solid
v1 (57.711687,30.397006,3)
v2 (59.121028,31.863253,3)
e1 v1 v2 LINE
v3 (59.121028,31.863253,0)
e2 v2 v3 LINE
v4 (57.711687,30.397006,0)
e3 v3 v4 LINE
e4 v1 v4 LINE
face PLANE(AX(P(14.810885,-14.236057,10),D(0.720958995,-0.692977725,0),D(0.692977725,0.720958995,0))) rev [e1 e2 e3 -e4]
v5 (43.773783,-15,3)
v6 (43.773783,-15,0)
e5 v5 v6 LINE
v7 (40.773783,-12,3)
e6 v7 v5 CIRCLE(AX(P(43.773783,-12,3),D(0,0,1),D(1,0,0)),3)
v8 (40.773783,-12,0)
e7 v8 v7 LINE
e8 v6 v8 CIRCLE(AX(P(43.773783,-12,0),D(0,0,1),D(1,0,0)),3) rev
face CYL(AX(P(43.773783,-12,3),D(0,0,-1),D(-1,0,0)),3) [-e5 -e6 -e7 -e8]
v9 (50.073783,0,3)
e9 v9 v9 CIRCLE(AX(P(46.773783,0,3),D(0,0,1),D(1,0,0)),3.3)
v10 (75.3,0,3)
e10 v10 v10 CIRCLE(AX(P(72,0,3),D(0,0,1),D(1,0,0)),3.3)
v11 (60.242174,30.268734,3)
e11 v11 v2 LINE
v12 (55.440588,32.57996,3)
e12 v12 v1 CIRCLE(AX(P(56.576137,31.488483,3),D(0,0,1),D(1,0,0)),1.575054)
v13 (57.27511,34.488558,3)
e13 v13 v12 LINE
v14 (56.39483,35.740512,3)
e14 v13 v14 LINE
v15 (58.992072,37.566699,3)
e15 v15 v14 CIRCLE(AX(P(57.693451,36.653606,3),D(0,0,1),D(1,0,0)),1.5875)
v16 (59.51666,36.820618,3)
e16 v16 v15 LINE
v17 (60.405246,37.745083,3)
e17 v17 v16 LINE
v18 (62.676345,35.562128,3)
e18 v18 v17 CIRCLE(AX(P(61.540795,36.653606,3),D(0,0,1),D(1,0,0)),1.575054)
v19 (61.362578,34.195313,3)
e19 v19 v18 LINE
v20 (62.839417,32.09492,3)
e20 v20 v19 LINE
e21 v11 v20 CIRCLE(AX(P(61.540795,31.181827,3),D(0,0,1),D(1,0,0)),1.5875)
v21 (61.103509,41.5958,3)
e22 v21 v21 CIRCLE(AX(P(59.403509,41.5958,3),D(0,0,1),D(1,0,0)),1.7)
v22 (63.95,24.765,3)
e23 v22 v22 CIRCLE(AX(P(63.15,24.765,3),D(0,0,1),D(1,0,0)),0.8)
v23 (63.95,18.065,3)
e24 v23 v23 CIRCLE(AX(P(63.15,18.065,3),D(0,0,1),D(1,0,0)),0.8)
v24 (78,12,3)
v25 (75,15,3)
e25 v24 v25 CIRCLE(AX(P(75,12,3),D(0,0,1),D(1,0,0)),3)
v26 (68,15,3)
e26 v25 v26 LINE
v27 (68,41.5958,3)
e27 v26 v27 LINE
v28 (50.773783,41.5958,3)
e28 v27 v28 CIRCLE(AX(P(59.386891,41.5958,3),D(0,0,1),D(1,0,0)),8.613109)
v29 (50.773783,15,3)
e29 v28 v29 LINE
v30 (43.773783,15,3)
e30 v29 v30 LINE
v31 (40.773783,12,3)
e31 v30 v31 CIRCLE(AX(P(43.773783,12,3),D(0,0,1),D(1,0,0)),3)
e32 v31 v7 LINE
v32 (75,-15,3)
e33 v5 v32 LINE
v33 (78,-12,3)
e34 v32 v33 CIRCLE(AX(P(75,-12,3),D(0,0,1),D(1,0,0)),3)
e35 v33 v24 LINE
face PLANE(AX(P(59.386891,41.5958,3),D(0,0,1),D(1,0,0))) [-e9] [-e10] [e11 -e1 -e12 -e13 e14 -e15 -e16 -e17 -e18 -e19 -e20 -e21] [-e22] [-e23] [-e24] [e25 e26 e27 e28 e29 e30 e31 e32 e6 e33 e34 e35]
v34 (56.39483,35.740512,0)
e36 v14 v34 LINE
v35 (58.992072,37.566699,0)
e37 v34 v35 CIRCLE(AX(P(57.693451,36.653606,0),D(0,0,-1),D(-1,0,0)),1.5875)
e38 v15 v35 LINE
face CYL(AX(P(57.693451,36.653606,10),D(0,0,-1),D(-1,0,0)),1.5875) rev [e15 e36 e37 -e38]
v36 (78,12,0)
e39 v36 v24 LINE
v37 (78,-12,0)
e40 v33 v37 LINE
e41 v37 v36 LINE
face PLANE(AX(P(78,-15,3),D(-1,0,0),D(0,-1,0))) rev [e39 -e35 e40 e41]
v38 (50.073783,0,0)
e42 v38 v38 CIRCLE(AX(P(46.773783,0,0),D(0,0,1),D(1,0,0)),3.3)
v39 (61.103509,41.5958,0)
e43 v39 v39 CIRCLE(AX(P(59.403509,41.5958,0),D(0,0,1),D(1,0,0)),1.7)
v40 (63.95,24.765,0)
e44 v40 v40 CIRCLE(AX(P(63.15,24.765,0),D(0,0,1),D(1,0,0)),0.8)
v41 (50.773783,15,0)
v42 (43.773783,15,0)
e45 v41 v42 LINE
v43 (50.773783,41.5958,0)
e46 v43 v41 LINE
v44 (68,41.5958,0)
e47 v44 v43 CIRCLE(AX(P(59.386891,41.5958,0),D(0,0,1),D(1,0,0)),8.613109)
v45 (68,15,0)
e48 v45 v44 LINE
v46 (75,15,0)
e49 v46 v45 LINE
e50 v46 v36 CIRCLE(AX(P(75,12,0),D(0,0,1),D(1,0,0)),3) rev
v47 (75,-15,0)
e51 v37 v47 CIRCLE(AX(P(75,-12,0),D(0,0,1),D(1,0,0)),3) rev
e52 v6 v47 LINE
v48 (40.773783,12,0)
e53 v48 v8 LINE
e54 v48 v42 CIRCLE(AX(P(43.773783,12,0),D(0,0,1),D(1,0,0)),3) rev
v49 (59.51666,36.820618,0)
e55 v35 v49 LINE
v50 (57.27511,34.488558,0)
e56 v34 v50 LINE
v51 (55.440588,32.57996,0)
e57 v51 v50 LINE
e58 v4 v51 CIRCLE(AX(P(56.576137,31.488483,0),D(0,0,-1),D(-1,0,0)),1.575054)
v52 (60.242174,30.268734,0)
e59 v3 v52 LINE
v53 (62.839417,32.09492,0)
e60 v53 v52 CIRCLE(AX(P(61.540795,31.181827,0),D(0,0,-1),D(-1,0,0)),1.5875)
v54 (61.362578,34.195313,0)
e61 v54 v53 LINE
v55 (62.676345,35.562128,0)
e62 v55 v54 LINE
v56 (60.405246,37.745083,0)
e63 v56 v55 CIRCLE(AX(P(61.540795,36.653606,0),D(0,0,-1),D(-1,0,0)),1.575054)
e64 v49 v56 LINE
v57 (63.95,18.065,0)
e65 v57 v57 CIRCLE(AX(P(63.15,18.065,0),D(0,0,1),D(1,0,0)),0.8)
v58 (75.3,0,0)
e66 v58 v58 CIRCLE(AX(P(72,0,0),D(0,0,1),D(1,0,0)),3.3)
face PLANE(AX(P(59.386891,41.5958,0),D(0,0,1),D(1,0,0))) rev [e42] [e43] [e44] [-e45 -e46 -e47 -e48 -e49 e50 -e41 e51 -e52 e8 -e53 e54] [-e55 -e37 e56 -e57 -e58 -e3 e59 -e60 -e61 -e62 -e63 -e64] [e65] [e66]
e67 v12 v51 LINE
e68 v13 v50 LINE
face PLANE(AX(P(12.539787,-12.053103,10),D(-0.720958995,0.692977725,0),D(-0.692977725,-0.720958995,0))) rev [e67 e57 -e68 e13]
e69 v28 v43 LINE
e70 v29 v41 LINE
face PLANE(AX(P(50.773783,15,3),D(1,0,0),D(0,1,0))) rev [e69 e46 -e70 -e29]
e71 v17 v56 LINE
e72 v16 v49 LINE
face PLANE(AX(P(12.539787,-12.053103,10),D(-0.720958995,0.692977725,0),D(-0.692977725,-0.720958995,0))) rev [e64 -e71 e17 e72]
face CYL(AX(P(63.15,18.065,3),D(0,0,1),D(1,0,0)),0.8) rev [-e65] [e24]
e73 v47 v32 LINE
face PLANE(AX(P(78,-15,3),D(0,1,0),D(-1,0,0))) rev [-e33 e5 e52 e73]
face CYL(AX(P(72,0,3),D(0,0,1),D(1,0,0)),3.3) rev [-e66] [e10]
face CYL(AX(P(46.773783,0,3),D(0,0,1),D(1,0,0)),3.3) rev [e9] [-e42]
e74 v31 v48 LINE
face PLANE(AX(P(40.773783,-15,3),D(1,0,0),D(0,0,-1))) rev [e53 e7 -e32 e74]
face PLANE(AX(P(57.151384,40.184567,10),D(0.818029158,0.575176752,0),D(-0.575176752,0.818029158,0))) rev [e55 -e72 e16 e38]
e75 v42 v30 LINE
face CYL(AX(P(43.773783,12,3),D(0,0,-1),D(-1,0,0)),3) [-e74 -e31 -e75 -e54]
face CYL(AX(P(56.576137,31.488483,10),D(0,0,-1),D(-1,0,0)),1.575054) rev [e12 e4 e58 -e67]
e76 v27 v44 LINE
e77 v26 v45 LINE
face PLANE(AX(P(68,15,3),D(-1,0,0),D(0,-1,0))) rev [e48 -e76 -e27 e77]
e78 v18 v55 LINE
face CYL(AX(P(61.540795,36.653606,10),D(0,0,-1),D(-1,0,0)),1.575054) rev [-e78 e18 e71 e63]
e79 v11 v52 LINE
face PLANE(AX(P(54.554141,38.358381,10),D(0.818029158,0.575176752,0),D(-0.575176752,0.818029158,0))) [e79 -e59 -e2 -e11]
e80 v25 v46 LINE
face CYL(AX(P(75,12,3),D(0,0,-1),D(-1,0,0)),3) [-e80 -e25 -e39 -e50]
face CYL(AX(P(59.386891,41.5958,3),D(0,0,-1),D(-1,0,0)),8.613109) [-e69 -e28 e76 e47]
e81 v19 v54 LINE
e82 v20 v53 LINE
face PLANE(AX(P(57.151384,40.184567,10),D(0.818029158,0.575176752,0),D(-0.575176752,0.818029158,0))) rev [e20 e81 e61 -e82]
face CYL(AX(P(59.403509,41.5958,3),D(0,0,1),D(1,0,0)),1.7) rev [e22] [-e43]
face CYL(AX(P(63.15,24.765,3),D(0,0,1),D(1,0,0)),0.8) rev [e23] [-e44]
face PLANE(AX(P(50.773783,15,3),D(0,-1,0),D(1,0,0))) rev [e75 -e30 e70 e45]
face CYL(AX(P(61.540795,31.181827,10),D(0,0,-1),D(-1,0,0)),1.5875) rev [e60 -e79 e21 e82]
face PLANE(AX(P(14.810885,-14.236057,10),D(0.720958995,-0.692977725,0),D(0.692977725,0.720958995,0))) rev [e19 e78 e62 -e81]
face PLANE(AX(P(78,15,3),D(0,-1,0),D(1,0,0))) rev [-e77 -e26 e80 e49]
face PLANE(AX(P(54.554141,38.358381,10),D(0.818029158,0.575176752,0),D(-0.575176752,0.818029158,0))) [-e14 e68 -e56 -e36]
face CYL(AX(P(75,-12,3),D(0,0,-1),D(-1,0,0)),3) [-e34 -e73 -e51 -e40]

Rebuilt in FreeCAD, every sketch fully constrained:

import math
import FreeCAD as App
import Part
import Sketcher

V = App.Vector


def edges_at(feature, points):
    """Names of the edges that pass closest to the given points."""
    edges = feature.Shape.Edges
    near = lambda p: min(range(len(edges)), key=lambda i: edges[i].distToShape(Part.Vertex(*p))[0])
    return sorted({f"Edge{near(p) + 1}" for p in points})

doc = App.newDocument("Part")
params = doc.addObject("Spreadsheet::Sheet", "Params")
for row, (alias, value) in enumerate([
    ("sketch1_width", "10 mm"),
    ("sketch1_height", "30 mm"),
    ("pad1_length", "3 mm"),
    ("sketch2_diameter", "3.4 mm"),
    ("hole_diameter", "3.4 mm"),
    ("sketch3_diameter", "6.6 mm"),
    ("hole2_diameter", "6.6 mm"),
    ("fillet_radius", "3 mm"),
    ("pocket1_length", "10 mm"),
    ("sketch5_diameter", "1.6 mm"),
    ("hole3_diameter", "1.6 mm"),
], start=1):
    params.set(f"A{row}", alias)
    params.set(f"B{row}", "=" + value)
    params.setAlias(f"B{row}", alias)

body = doc.addObject("PartDesign::Body", "Body")

sketch1 = doc.addObject("Sketcher::SketchObject", "Sketch")
body.addObject(sketch1)
sketch1.AttachmentSupport = (doc.XY_Plane, [""])
sketch1.MapMode = "FlatFace"
sketch1.addGeometry(Part.LineSegment(V(51, 42, 0), V(51, 15, 0)), False)
sketch1.addGeometry(Part.LineSegment(V(51, 15, 0), V(41, 15, 0)), False)
sketch1.addGeometry(Part.LineSegment(V(41, 15, 0), V(41, -15, 0)), False)
sketch1.addGeometry(Part.LineSegment(V(41, -15, 0), V(78, -15, 0)), False)
sketch1.addGeometry(Part.LineSegment(V(78, -15, 0), V(78, 15, 0)), False)
sketch1.addGeometry(Part.LineSegment(V(78, 15, 0), V(68, 15, 0)), False)
sketch1.addGeometry(Part.LineSegment(V(68, 15, 0), V(68, 42, 0)), False)
sketch1.addGeometry(Part.ArcOfCircle(Part.Circle(V(59, 42, 0), V(0, 0, 1), 9), math.radians(0), math.radians(180)), False)
sketch1.addConstraint(Sketcher.Constraint("Coincident", 0, 2, 1, 1))
sketch1.addConstraint(Sketcher.Constraint("Coincident", 1, 2, 2, 1))
sketch1.addConstraint(Sketcher.Constraint("Coincident", 2, 2, 3, 1))
sketch1.addConstraint(Sketcher.Constraint("Coincident", 3, 2, 4, 1))
sketch1.addConstraint(Sketcher.Constraint("Coincident", 4, 2, 5, 1))
sketch1.addConstraint(Sketcher.Constraint("Coincident", 5, 2, 6, 1))
sketch1.addConstraint(Sketcher.Constraint("Tangent", 6, 2, 7, 1))
sketch1.addConstraint(Sketcher.Constraint("Tangent", 7, 2, 0, 1))
sketch1.addConstraint(Sketcher.Constraint("Vertical", 0))
sketch1.addConstraint(Sketcher.Constraint("Horizontal", 1))
sketch1.addConstraint(Sketcher.Constraint("Vertical", 2))
sketch1.addConstraint(Sketcher.Constraint("Horizontal", 3))
sketch1.addConstraint(Sketcher.Constraint("Vertical", 4))
sketch1.addConstraint(Sketcher.Constraint("Horizontal", 5))
sketch1.addConstraint(Sketcher.Constraint("Vertical", 6))
sketch1.addConstraint(Sketcher.Constraint("Horizontal", 1, 2, 4, 2))
sketch1.addConstraint(Sketcher.Constraint("Equal", 1, 5))
sketch1.addConstraint(Sketcher.Constraint("DistanceX", 1, 2, 1, 1, 10.0))
sketch1.addConstraint(Sketcher.Constraint("DistanceY", 2, 2, 2, 1, 30.0))
sketch1.addConstraint(Sketcher.Constraint("DistanceY", -1, 1, 0, 2, 15.0))
sketch1.addConstraint(Sketcher.Constraint("DistanceX", -1, 1, 3, 2, 78.0))
sketch1.addConstraint(Sketcher.Constraint("Radius", 7, 8.613109))
sketch1.addConstraint(Sketcher.Constraint("DistanceY", 0, 2, 0, 1, 26.5958))
sketch1.setExpression("Constraints[17]", "Params.sketch1_width")
sketch1.setExpression("Constraints[18]", "Params.sketch1_height")
pad1 = doc.addObject("PartDesign::Pad", "Pad")
body.addObject(pad1)
pad1.Profile = sketch1
pad1.setExpression("Length", "Params.pad1_length")

sketch2 = doc.addObject("Sketcher::SketchObject", "Sketch001")
body.addObject(sketch2)
sketch2.AttachmentSupport = (doc.XY_Plane, [""])
sketch2.MapMode = "FlatFace"
sketch2.AttachmentOffset = App.Placement(V(0, 0, 3), App.Rotation())
sketch2.addGeometry(Part.Circle(V(59.4, 41.6, 0), V(0, 0, 1), 1.7), False)
sketch2.addConstraint(Sketcher.Constraint("Diameter", 0, 3.4))
sketch2.addConstraint(Sketcher.Constraint("DistanceY", -1, 1, 0, 3, 41.5958))
sketch2.addConstraint(Sketcher.Constraint("DistanceX", -1, 1, 0, 3, 59.403509))
sketch2.setExpression("Constraints[0]", "Params.sketch2_diameter")
doc.recompute()
hole = doc.addObject("PartDesign::Hole", "Hole")
body.addObject(hole)
hole.Profile = sketch2
hole.ThreadType = "None"
hole.setExpression("Diameter", "Params.hole_diameter")
hole.DepthType = "ThroughAll"

sketch3 = doc.addObject("Sketcher::SketchObject", "Sketch002")
body.addObject(sketch3)
sketch3.AttachmentSupport = (doc.XY_Plane, [""])
sketch3.MapMode = "FlatFace"
sketch3.AttachmentOffset = App.Placement(V(0, 0, 3), App.Rotation())
sketch3.addGeometry(Part.Circle(V(46.8, 0, 0), V(0, 0, 1), 3.3), False)
sketch3.addGeometry(Part.Circle(V(72, 0, 0), V(0, 0, 1), 3.3), False)
sketch3.addConstraint(Sketcher.Constraint("Equal", 0, 1))
sketch3.addConstraint(Sketcher.Constraint("PointOnObject", 0, 3, -1))
sketch3.addConstraint(Sketcher.Constraint("PointOnObject", 1, 3, -1))
sketch3.addConstraint(Sketcher.Constraint("Diameter", 0, 6.6))
sketch3.addConstraint(Sketcher.Constraint("DistanceX", -1, 1, 1, 3, 72.0))
sketch3.addConstraint(Sketcher.Constraint("DistanceX", -1, 1, 0, 3, 46.773783))
sketch3.setExpression("Constraints[3]", "Params.sketch3_diameter")
doc.recompute()
hole2 = doc.addObject("PartDesign::Hole", "Hole001")
body.addObject(hole2)
hole2.Profile = sketch3
hole2.ThreadType = "None"
hole2.setExpression("Diameter", "Params.hole2_diameter")
hole2.DepthType = "ThroughAll"
doc.recompute()

fillet = doc.addObject("PartDesign::Fillet", "Fillet")
body.addObject(fillet)
fillet.Base = (hole2, edges_at(hole2, [
    (78, -15, 1.5),
    (40.774, -15, 1.5),
    (40.774, 15, 1.5),
    (78, 15, 1.5),
]))
fillet.setExpression("Radius", "Params.fillet_radius")

sketch4 = doc.addObject("Sketcher::SketchObject", "Sketch003")
body.addObject(sketch4)
sketch4.AttachmentSupport = (doc.XY_Plane, [""])
sketch4.MapMode = "FlatFace"
sketch4.addGeometry(Part.LineSegment(V(60.2, 30.3, 0), V(59.1, 31.9, 0)), False)
sketch4.addGeometry(Part.LineSegment(V(59.1, 31.9, 0), V(57.7, 30.4, 0)), False)
sketch4.addGeometry(Part.ArcOfCircle(Part.Circle(V(56.6, 31.5, 0), V(0, 0, 1), 1.6), math.radians(136), math.radians(316)), False)
sketch4.addGeometry(Part.LineSegment(V(55.4, 32.6, 0), V(57.3, 34.5, 0)), False)
sketch4.addGeometry(Part.LineSegment(V(57.3, 34.5, 0), V(56.4, 35.7, 0)), False)
sketch4.addGeometry(Part.ArcOfCircle(Part.Circle(V(57.7, 36.7, 0), V(0, 0, 1), 1.6), math.radians(35), math.radians(215)), False)
sketch4.addGeometry(Part.LineSegment(V(59, 37.6, 0), V(59.5, 36.8, 0)), False)
sketch4.addGeometry(Part.LineSegment(V(59.5, 36.8, 0), V(60.4, 37.7, 0)), False)
sketch4.addGeometry(Part.ArcOfCircle(Part.Circle(V(61.5, 36.7, 0), V(0, 0, 1), 1.6), math.radians(-44), math.radians(136)), False)
sketch4.addGeometry(Part.LineSegment(V(62.7, 35.6, 0), V(61.4, 34.2, 0)), False)
sketch4.addGeometry(Part.LineSegment(V(61.4, 34.2, 0), V(62.8, 32.1, 0)), False)
sketch4.addGeometry(Part.ArcOfCircle(Part.Circle(V(61.5, 31.2, 0), V(0, 0, 1), 1.6), math.radians(-145), math.radians(35)), False)
sketch4.addConstraint(Sketcher.Constraint("Coincident", 0, 2, 1, 1))
sketch4.addConstraint(Sketcher.Constraint("Tangent", 1, 2, 2, 2))
sketch4.addConstraint(Sketcher.Constraint("Tangent", 2, 1, 3, 1))
sketch4.addConstraint(Sketcher.Constraint("Coincident", 3, 2, 4, 1))
sketch4.addConstraint(Sketcher.Constraint("Tangent", 4, 2, 5, 2))
sketch4.addConstraint(Sketcher.Constraint("Tangent", 5, 1, 6, 1))
sketch4.addConstraint(Sketcher.Constraint("Coincident", 6, 2, 7, 1))
sketch4.addConstraint(Sketcher.Constraint("Tangent", 7, 2, 8, 2))
sketch4.addConstraint(Sketcher.Constraint("Tangent", 8, 1, 9, 1))
sketch4.addConstraint(Sketcher.Constraint("Coincident", 9, 2, 10, 1))
sketch4.addConstraint(Sketcher.Constraint("Tangent", 10, 2, 11, 2))
sketch4.addConstraint(Sketcher.Constraint("Tangent", 11, 1, 0, 1))
sketch4.addConstraint(Sketcher.Constraint("Equal", 2, 8))
sketch4.addConstraint(Sketcher.Constraint("Equal", 5, 11))
sketch4.addConstraint(Sketcher.Constraint("Parallel", 1, 3))
sketch4.addConstraint(Sketcher.Constraint("Parallel", 0, 4))
sketch4.addConstraint(Sketcher.Constraint("Parallel", 4, 6))
sketch4.addConstraint(Sketcher.Constraint("Parallel", 3, 7))
sketch4.addConstraint(Sketcher.Constraint("Parallel", 7, 9))
sketch4.addConstraint(Sketcher.Constraint("Parallel", 6, 10))
sketch4.addConstraint(Sketcher.Constraint("Horizontal", 5, 3, 8, 3))
sketch4.addConstraint(Sketcher.Constraint("Vertical", 8, 3, 11, 3))
sketch4.addConstraint(Sketcher.Constraint("Radius", 5, 1.5875))
sketch4.addConstraint(Sketcher.Constraint("Radius", 2, 1.575054))
sketch4.addConstraint(Sketcher.Constraint("DistanceY", -1, 1, 5, 1, 37.566699))
sketch4.addConstraint(Sketcher.Constraint("DistanceY", 1, 2, 5, 3, 6.2566))
sketch4.addConstraint(Sketcher.Constraint("DistanceX", 2, 1, 1, 2, 2.271099))
sketch4.addConstraint(Sketcher.Constraint("DistanceY", 11, 3, 8, 1, 4.380302))
sketch4.addConstraint(Sketcher.Constraint("Distance", 0, 1.949221))
sketch4.addConstraint(Sketcher.Constraint("Distance", 7, 1.282272))
sketch4.addConstraint(Sketcher.Constraint("Distance", 9, 1.895829))
sketch4.addConstraint(Sketcher.Constraint("DistanceX", -1, 1, 5, 3, 57.693451))
pocket1 = doc.addObject("PartDesign::Pocket", "Pocket")
body.addObject(pocket1)
pocket1.Profile = sketch4
pocket1.setExpression("Length", "Params.pocket1_length")
pocket1.Reversed = True

sketch5 = doc.addObject("Sketcher::SketchObject", "Sketch004")
body.addObject(sketch5)
sketch5.AttachmentSupport = (doc.XY_Plane, [""])
sketch5.MapMode = "FlatFace"
sketch5.AttachmentOffset = App.Placement(V(0, 0, 3), App.Rotation())
sketch5.addGeometry(Part.Circle(V(63.1, 24.8, 0), V(0, 0, 1), 0.8), False)
sketch5.addGeometry(Part.Circle(V(63.1, 18.1, 0), V(0, 0, 1), 0.8), False)
sketch5.addConstraint(Sketcher.Constraint("Equal", 0, 1))
sketch5.addConstraint(Sketcher.Constraint("Vertical", 0, 3, 1, 3))
sketch5.addConstraint(Sketcher.Constraint("Diameter", 0, 1.6))
sketch5.addConstraint(Sketcher.Constraint("DistanceY", 1, 3, 0, 3, 6.7))
sketch5.addConstraint(Sketcher.Constraint("DistanceX", -1, 1, 0, 3, 63.15))
sketch5.addConstraint(Sketcher.Constraint("DistanceY", -1, 1, 0, 3, 24.765))
sketch5.setExpression("Constraints[2]", "Params.sketch5_diameter")
doc.recompute()
hole3 = doc.addObject("PartDesign::Hole", "Hole002")
body.addObject(hole3)
hole3.Profile = sketch5
hole3.ThreadType = "None"
hole3.setExpression("Diameter", "Params.hole3_diameter")
hole3.DepthType = "ThroughAll"

doc.recompute()
